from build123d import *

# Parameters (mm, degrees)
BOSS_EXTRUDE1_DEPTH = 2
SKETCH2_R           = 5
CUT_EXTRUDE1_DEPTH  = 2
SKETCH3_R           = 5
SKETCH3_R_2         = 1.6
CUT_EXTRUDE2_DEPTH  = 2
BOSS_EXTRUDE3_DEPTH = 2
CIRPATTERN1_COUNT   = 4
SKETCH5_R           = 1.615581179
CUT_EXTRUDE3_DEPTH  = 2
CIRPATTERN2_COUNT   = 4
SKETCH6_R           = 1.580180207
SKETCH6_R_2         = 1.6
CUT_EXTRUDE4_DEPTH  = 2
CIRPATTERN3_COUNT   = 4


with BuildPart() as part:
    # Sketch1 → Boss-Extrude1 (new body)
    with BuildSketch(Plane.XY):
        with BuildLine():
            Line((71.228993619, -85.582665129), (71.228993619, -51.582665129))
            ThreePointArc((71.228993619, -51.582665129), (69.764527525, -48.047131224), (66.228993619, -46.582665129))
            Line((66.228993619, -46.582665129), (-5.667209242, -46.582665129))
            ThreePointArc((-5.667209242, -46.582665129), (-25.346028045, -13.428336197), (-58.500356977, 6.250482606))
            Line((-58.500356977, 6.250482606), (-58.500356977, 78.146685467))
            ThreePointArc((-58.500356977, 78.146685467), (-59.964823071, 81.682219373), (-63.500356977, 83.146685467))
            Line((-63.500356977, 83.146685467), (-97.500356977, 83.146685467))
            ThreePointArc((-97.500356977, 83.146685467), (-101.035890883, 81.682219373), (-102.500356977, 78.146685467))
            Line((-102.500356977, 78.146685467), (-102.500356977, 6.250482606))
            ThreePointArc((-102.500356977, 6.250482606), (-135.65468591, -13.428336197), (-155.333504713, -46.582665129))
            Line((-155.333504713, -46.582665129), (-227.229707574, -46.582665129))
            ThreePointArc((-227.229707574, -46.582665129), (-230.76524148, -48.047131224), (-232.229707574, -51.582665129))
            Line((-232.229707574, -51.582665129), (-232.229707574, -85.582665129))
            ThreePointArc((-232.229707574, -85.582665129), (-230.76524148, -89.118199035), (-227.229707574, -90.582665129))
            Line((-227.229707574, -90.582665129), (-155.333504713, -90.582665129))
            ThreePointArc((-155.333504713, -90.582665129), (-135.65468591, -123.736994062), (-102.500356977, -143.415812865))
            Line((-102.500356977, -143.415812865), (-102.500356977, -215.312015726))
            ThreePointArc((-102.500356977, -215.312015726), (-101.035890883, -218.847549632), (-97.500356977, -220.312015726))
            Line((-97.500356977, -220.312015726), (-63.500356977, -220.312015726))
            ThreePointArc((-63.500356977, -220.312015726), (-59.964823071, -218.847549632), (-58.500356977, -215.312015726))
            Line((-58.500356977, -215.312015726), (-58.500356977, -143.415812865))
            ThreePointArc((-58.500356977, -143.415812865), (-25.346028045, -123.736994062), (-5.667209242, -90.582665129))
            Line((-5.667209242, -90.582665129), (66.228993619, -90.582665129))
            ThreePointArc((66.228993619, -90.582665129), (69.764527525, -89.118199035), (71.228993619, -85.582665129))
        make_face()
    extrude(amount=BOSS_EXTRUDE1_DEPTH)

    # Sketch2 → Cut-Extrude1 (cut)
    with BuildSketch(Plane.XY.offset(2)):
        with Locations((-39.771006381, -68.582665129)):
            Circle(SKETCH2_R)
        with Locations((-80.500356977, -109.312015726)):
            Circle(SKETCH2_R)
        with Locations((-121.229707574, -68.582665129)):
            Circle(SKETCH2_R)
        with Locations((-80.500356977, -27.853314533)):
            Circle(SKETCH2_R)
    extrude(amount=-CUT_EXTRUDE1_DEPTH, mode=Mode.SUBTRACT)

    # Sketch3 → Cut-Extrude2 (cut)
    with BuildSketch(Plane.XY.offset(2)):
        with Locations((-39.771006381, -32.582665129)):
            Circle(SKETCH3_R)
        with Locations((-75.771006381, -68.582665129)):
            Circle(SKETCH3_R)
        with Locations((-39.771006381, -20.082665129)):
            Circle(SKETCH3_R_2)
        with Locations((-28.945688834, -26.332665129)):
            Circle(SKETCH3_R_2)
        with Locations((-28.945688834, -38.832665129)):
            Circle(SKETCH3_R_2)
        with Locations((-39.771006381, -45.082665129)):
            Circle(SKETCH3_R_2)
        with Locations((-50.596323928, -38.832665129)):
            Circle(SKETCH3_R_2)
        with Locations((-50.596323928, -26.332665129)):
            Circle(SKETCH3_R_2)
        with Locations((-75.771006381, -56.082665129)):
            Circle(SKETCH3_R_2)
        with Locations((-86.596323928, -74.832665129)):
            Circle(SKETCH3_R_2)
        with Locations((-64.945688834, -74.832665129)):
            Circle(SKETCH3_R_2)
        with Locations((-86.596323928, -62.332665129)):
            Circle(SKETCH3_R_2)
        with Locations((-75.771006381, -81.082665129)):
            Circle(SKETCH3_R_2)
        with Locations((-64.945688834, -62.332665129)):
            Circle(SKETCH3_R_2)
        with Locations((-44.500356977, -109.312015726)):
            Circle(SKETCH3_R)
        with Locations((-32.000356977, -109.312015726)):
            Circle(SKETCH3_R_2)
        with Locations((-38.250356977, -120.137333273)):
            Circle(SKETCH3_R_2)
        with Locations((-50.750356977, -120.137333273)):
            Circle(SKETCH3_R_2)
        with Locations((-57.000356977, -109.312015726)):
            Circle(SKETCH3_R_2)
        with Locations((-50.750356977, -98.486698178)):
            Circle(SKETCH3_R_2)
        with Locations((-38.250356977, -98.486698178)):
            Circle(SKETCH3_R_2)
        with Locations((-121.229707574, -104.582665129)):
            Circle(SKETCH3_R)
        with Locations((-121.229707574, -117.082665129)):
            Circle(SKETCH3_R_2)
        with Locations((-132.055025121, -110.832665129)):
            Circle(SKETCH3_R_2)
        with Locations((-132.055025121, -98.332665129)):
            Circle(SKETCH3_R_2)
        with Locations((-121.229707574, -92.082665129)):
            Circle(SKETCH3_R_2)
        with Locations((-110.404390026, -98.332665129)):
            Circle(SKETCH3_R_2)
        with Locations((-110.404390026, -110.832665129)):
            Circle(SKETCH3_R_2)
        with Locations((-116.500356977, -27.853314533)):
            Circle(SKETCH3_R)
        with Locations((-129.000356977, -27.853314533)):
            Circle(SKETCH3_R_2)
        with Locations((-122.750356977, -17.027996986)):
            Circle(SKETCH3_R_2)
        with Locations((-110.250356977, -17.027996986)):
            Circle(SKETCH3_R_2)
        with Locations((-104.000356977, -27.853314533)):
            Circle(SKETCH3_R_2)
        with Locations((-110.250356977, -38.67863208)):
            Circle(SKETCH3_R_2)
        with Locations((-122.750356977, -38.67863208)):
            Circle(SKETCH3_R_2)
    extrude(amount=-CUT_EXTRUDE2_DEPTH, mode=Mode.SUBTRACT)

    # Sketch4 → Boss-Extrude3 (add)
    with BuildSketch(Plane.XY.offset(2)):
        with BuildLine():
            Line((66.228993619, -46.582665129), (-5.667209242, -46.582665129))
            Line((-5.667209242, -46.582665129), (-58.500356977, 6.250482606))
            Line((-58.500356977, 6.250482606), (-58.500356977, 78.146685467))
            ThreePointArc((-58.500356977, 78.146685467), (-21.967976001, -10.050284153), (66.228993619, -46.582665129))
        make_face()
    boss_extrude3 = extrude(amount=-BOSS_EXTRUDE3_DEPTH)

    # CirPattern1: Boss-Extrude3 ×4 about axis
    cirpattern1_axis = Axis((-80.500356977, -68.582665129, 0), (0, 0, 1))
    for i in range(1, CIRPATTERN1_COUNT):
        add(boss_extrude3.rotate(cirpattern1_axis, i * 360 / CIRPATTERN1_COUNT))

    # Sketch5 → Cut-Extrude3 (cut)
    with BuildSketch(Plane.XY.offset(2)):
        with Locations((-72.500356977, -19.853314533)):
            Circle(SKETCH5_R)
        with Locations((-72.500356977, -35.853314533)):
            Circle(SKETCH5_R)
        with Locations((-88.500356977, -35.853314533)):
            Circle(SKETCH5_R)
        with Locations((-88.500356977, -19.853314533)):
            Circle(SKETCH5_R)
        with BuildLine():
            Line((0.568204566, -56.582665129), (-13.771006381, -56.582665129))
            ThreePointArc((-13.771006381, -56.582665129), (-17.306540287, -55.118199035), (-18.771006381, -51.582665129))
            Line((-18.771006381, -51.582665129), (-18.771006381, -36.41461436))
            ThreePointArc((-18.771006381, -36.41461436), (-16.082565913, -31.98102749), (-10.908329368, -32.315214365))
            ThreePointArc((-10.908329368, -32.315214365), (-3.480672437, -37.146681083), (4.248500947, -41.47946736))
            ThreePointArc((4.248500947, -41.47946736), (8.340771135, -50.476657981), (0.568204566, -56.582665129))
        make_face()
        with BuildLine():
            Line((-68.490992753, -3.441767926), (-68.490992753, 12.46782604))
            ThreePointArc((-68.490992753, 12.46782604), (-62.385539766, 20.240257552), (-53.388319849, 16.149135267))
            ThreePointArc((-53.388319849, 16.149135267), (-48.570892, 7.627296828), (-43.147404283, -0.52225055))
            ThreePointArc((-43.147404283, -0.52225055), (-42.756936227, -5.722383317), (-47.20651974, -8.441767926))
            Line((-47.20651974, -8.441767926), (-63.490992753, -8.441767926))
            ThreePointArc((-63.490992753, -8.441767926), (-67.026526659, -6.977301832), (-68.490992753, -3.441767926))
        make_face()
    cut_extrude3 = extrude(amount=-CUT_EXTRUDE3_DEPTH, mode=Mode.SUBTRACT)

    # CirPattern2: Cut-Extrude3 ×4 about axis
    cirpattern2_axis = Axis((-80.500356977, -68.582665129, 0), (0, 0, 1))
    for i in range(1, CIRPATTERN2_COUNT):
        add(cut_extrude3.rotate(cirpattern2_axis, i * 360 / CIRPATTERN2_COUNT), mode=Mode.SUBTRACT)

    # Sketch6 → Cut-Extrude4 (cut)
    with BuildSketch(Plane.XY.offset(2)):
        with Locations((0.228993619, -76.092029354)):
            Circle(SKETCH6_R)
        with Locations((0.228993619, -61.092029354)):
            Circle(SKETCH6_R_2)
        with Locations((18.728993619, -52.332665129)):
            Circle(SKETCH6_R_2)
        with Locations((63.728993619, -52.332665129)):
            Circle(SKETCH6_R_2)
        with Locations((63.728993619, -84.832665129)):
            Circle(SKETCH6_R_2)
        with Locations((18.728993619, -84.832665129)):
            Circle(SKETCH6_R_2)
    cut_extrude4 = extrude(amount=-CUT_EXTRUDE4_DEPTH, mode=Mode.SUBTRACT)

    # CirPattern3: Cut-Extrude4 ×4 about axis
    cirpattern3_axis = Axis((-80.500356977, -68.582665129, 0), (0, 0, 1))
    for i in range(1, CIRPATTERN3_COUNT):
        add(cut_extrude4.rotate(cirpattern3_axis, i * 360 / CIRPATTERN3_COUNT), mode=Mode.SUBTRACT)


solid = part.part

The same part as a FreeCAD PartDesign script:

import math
import FreeCAD as App
import Part
import Sketcher

V = App.Vector

doc = App.newDocument("Part")
body = doc.addObject("PartDesign::Body", "Body")

# Sketch on XY plane
sketch1 = doc.addObject("Sketcher::SketchObject", "Sketch")
body.addObject(sketch1)
sketch1.AttachmentSupport = (doc.XY_Plane, [""])
sketch1.MapMode = "FlatFace"
sketch1.addGeometry(Part.LineSegment(V(71, -86, 0), V(71, -52, 0)), False)
sketch1.addGeometry(Part.ArcOfCircle(Part.Circle(V(66, -52, 0), V(0, 0, 1), 5), math.radians(0), math.radians(90)), False)
sketch1.addGeometry(Part.LineSegment(V(66, -47, 0), V(-6, -47, 0)), False)
sketch1.addGeometry(Part.ArcOfCircle(Part.Circle(V(-81, -69, 0), V(0, 0, 1), 78), math.radians(16), math.radians(74)), False)
sketch1.addGeometry(Part.LineSegment(V(-59, 6, 0), V(-59, 78, 0)), False)
sketch1.addGeometry(Part.ArcOfCircle(Part.Circle(V(-64, 78, 0), V(0, 0, 1), 5), math.radians(0), math.radians(90)), False)
sketch1.addGeometry(Part.LineSegment(V(-64, 83, 0), V(-98, 83, 0)), False)
sketch1.addGeometry(Part.ArcOfCircle(Part.Circle(V(-98, 78, 0), V(0, 0, 1), 5), math.radians(90), math.radians(180)), False)
sketch1.addGeometry(Part.LineSegment(V(-103, 78, 0), V(-103, 6, 0)), False)
sketch1.addGeometry(Part.ArcOfCircle(Part.Circle(V(-81, -69, 0), V(0, 0, 1), 78), math.radians(106), math.radians(164)), False)
sketch1.addGeometry(Part.LineSegment(V(-155, -47, 0), V(-227, -47, 0)), False)
sketch1.addGeometry(Part.ArcOfCircle(Part.Circle(V(-227, -52, 0), V(0, 0, 1), 5), math.radians(90), math.radians(180)), False)
sketch1.addGeometry(Part.LineSegment(V(-232, -52, 0), V(-232, -86, 0)), False)
sketch1.addGeometry(Part.ArcOfCircle(Part.Circle(V(-227, -86, 0), V(0, 0, 1), 5), math.radians(180), math.radians(270)), False)
sketch1.addGeometry(Part.LineSegment(V(-227, -91, 0), V(-155, -91, 0)), False)
sketch1.addGeometry(Part.ArcOfCircle(Part.Circle(V(-81, -69, 0), V(0, 0, 1), 78), math.radians(-164), math.radians(-106)), False)
sketch1.addGeometry(Part.LineSegment(V(-103, -143, 0), V(-103, -215, 0)), False)
sketch1.addGeometry(Part.ArcOfCircle(Part.Circle(V(-98, -215, 0), V(0, 0, 1), 5), math.radians(180), math.radians(270)), False)
sketch1.addGeometry(Part.LineSegment(V(-98, -220, 0), V(-64, -220, 0)), False)
sketch1.addGeometry(Part.ArcOfCircle(Part.Circle(V(-64, -215, 0), V(0, 0, 1), 5), math.radians(-90), math.radians(0)), False)
sketch1.addGeometry(Part.LineSegment(V(-59, -215, 0), V(-59, -143, 0)), False)
sketch1.addGeometry(Part.ArcOfCircle(Part.Circle(V(-81, -69, 0), V(0, 0, 1), 78), math.radians(-74), math.radians(-16)), False)
sketch1.addGeometry(Part.LineSegment(V(-6, -91, 0), V(66, -91, 0)), False)
sketch1.addGeometry(Part.ArcOfCircle(Part.Circle(V(66, -86, 0), V(0, 0, 1), 5), math.radians(-90), math.radians(0)), False)
sketch1.addConstraint(Sketcher.Constraint("Tangent", 0, 2, 1, 1))
sketch1.addConstraint(Sketcher.Constraint("Tangent", 1, 2, 2, 1))
sketch1.addConstraint(Sketcher.Constraint("Coincident", 2, 2, 3, 1))
sketch1.addConstraint(Sketcher.Constraint("Coincident", 3, 2, 4, 1))
sketch1.addConstraint(Sketcher.Constraint("Tangent", 4, 2, 5, 1))
sketch1.addConstraint(Sketcher.Constraint("Tangent", 5, 2, 6, 1))
sketch1.addConstraint(Sketcher.Constraint("Tangent", 6, 2, 7, 1))
sketch1.addConstraint(Sketcher.Constraint("Tangent", 7, 2, 8, 1))
sketch1.addConstraint(Sketcher.Constraint("Coincident", 8, 2, 9, 1))
sketch1.addConstraint(Sketcher.Constraint("Coincident", 9, 2, 10, 1))
sketch1.addConstraint(Sketcher.Constraint("Tangent", 10, 2, 11, 1))
sketch1.addConstraint(Sketcher.Constraint("Tangent", 11, 2, 12, 1))
sketch1.addConstraint(Sketcher.Constraint("Tangent", 12, 2, 13, 1))
sketch1.addConstraint(Sketcher.Constraint("Tangent", 13, 2, 14, 1))
sketch1.addConstraint(Sketcher.Constraint("Coincident", 14, 2, 15, 1))
sketch1.addConstraint(Sketcher.Constraint("Coincident", 15, 2, 16, 1))
sketch1.addConstraint(Sketcher.Constraint("Tangent", 16, 2, 17, 1))
sketch1.addConstraint(Sketcher.Constraint("Tangent", 17, 2, 18, 1))
sketch1.addConstraint(Sketcher.Constraint("Tangent", 18, 2, 19, 1))
sketch1.addConstraint(Sketcher.Constraint("Tangent", 19, 2, 20, 1))
sketch1.addConstraint(Sketcher.Constraint("Coincident", 20, 2, 21, 1))
sketch1.addConstraint(Sketcher.Constraint("Coincident", 21, 2, 22, 1))
sketch1.addConstraint(Sketcher.Constraint("Tangent", 22, 2, 23, 1))
sketch1.addConstraint(Sketcher.Constraint("Tangent", 23, 2, 0, 1))
sketch1.addConstraint(Sketcher.Constraint("Vertical", 0))
sketch1.addConstraint(Sketcher.Constraint("Horizontal", 2))
sketch1.addConstraint(Sketcher.Constraint("Vertical", 4))
sketch1.addConstraint(Sketcher.Constraint("Horizontal", 6))
sketch1.addConstraint(Sketcher.Constraint("Vertical", 8))
sketch1.addConstraint(Sketcher.Constraint("Horizontal", 10))
sketch1.addConstraint(Sketcher.Constraint("Vertical", 12))
sketch1.addConstraint(Sketcher.Constraint("Horizontal", 14))
sketch1.addConstraint(Sketcher.Constraint("Vertical", 16))
sketch1.addConstraint(Sketcher.Constraint("Horizontal", 18))
sketch1.addConstraint(Sketcher.Constraint("Vertical", 20))
sketch1.addConstraint(Sketcher.Constraint("Horizontal", 22))
sketch1.addConstraint(Sketcher.Constraint("Coincident", 9, 3, 3, 3))
sketch1.addConstraint(Sketcher.Constraint("Coincident", 15, 3, 3, 3))
sketch1.addConstraint(Sketcher.Constraint("Coincident", 21, 3, 3, 3))
sketch1.addConstraint(Sketcher.Constraint("Equal", 1, 5))
sketch1.addConstraint(Sketcher.Constraint("Equal", 5, 7))
sketch1.addConstraint(Sketcher.Constraint("Equal", 3, 9))
sketch1.addConstraint(Sketcher.Constraint("Equal", 7, 11))
sketch1.addConstraint(Sketcher.Constraint("Equal", 11, 13))
sketch1.addConstraint(Sketcher.Constraint("Equal", 9, 15))
sketch1.addConstraint(Sketcher.Constraint("Equal", 13, 17))
sketch1.addConstraint(Sketcher.Constraint("Equal", 17, 19))
sketch1.addConstraint(Sketcher.Constraint("Equal", 15, 21))
sketch1.addConstraint(Sketcher.Constraint("Equal", 19, 23))
sketch1.addConstraint(Sketcher.Constraint("Horizontal", 1, 3, 11, 3))
sketch1.addConstraint(Sketcher.Constraint("Horizontal", 13, 3, 23, 3))
sketch1.addConstraint(Sketcher.Constraint("Horizontal", 3, 2, 8, 2))
sketch1.addConstraint(Sketcher.Constraint("Horizontal", 15, 2, 20, 2))
sketch1.addConstraint(Sketcher.Constraint("Vertical", 7, 3, 17, 3))
sketch1.addConstraint(Sketcher.Constraint("Vertical", 9, 2, 14, 2))
sketch1.addConstraint(Sketcher.Constraint("Equal", 2, 10))
sketch1.addConstraint(Sketcher.Constraint("Equal", 18, 0))
sketch1.addConstraint(Sketcher.Constraint("Equal", 22, 4))
sketch1.addConstraint(Sketcher.Constraint("Equal", 8, 16))
sketch1.addConstraint(Sketcher.Constraint("Radius", 1, 5.0))
sketch1.addConstraint(Sketcher.Constraint("Radius", 3, 78.0))
sketch1.addConstraint(Sketcher.Constraint("DistanceX", 6, 2, 6, 1, 34.0))
sketch1.addConstraint(Sketcher.Constraint("DistanceX", 11, 3, 1, 3, 293.458701))
sketch1.addConstraint(Sketcher.Constraint("DistanceX", 2, 2, -1, 1, 5.667209))
sketch1.addConstraint(Sketcher.Constraint("DistanceY", 1, 3, -1, 1, 51.582665))
pad1 = doc.addObject("PartDesign::Pad", "Pad")
body.addObject(pad1)
pad1.Profile = sketch1
pad1.Length = 2

# Sketch on XY plane
sketch2 = doc.addObject("Sketcher::SketchObject", "Sketch001")
body.addObject(sketch2)
sketch2.AttachmentSupport = (doc.XY_Plane, [""])
sketch2.MapMode = "FlatFace"
sketch2.AttachmentOffset = App.Placement(V(0, 0, 2), App.Rotation())
sketch2.addGeometry(Part.Circle(V(-40, -69, 0), V(0, 0, 1), 5), False)
sketch2.addGeometry(Part.Circle(V(-81, -109, 0), V(0, 0, 1), 5), False)
sketch2.addGeometry(Part.Circle(V(-121, -69, 0), V(0, 0, 1), 5), False)
sketch2.addGeometry(Part.Circle(V(-81, -28, 0), V(0, 0, 1), 5), False)
sketch2.addConstraint(Sketcher.Constraint("Equal", 0, 1))
sketch2.addConstraint(Sketcher.Constraint("Equal", 1, 2))
sketch2.addConstraint(Sketcher.Constraint("Equal", 2, 3))
sketch2.addConstraint(Sketcher.Constraint("Horizontal", 0, 3, 2, 3))
sketch2.addConstraint(Sketcher.Constraint("Vertical", 1, 3, 3, 3))
sketch2.addConstraint(Sketcher.Constraint("Diameter", 0, 10.0))
sketch2.addConstraint(Sketcher.Constraint("DistanceX", 2, 3, 0, 3, 81.458701))
sketch2.addConstraint(Sketcher.Constraint("DistanceY", 1, 3, 3, 3, 81.458701))
sketch2.addConstraint(Sketcher.Constraint("DistanceX", 1, 3, 0, 3, 40.729351))
sketch2.addConstraint(Sketcher.Constraint("DistanceY", 1, 3, 0, 3, 40.729351))
sketch2.addConstraint(Sketcher.Constraint("DistanceX", 0, 3, -1, 1, 39.771006))
sketch2.addConstraint(Sketcher.Constraint("DistanceY", 0, 3, -1, 1, 68.582665))
pocket1 = doc.addObject("PartDesign::Pocket", "Pocket")
body.addObject(pocket1)
pocket1.Profile = sketch2
pocket1.Length = 2

# Sketch on XY plane
sketch3 = doc.addObject("Sketcher::SketchObject", "Sketch002")
body.addObject(sketch3)
sketch3.AttachmentSupport = (doc.XY_Plane, [""])
sketch3.MapMode = "FlatFace"
sketch3.AttachmentOffset = App.Placement(V(0, 0, 2), App.Rotation())
sketch3.addGeometry(Part.Circle(V(-39.8, -32.6, 0), V(0, 0, 1), 5), False)
sketch3.addGeometry(Part.Circle(V(-75.8, -68.6, 0), V(0, 0, 1), 5), False)
sketch3.addGeometry(Part.Circle(V(-39.8, -20.1, 0), V(0, 0, 1), 1.6), False)
sketch3.addGeometry(Part.Circle(V(-28.9, -26.3, 0), V(0, 0, 1), 1.6), False)
sketch3.addGeometry(Part.Circle(V(-28.9, -38.8, 0), V(0, 0, 1), 1.6), False)
sketch3.addGeometry(Part.Circle(V(-39.8, -45.1, 0), V(0, 0, 1), 1.6), False)
sketch3.addGeometry(Part.Circle(V(-50.6, -38.8, 0), V(0, 0, 1), 1.6), False)
sketch3.addGeometry(Part.Circle(V(-50.6, -26.3, 0), V(0, 0, 1), 1.6), False)
sketch3.addGeometry(Part.Circle(V(-75.8, -56.1, 0), V(0, 0, 1), 1.6), False)
sketch3.addGeometry(Part.Circle(V(-86.6, -74.8, 0), V(0, 0, 1), 1.6), False)
sketch3.addGeometry(Part.Circle(V(-64.9, -74.8, 0), V(0, 0, 1), 1.6), False)
sketch3.addGeometry(Part.Circle(V(-86.6, -62.3, 0), V(0, 0, 1), 1.6), False)
sketch3.addGeometry(Part.Circle(V(-75.8, -81.1, 0), V(0, 0, 1), 1.6), False)
sketch3.addGeometry(Part.Circle(V(-64.9, -62.3, 0), V(0, 0, 1), 1.6), False)
sketch3.addGeometry(Part.Circle(V(-44.5, -109.3, 0), V(0, 0, 1), 5), False)
sketch3.addGeometry(Part.Circle(V(-32, -109.3, 0), V(0, 0, 1), 1.6), False)
sketch3.addGeometry(Part.Circle(V(-38.3, -120.1, 0), V(0, 0, 1), 1.6), False)
sketch3.addGeometry(Part.Circle(V(-50.8, -120.1, 0), V(0, 0, 1), 1.6), False)
sketch3.addGeometry(Part.Circle(V(-57, -109.3, 0), V(0, 0, 1), 1.6), False)
sketch3.addGeometry(Part.Circle(V(-50.8, -98.5, 0), V(0, 0, 1), 1.6), False)
sketch3.addGeometry(Part.Circle(V(-38.3, -98.5, 0), V(0, 0, 1), 1.6), False)
sketch3.addGeometry(Part.Circle(V(-121.2, -104.6, 0), V(0, 0, 1), 5), False)
sketch3.addGeometry(Part.Circle(V(-121.2, -117.1, 0), V(0, 0, 1), 1.6), False)
sketch3.addGeometry(Part.Circle(V(-132.1, -110.8, 0), V(0, 0, 1), 1.6), False)
sketch3.addGeometry(Part.Circle(V(-132.1, -98.3, 0), V(0, 0, 1), 1.6), False)
sketch3.addGeometry(Part.Circle(V(-121.2, -92.1, 0), V(0, 0, 1), 1.6), False)
sketch3.addGeometry(Part.Circle(V(-110.4, -98.3, 0), V(0, 0, 1), 1.6), False)
sketch3.addGeometry(Part.Circle(V(-110.4, -110.8, 0), V(0, 0, 1), 1.6), False)
sketch3.addGeometry(Part.Circle(V(-116.5, -27.9, 0), V(0, 0, 1), 5), False)
sketch3.addGeometry(Part.Circle(V(-129, -27.9, 0), V(0, 0, 1), 1.6), False)
sketch3.addGeometry(Part.Circle(V(-122.8, -17, 0), V(0, 0, 1), 1.6), False)
sketch3.addGeometry(Part.Circle(V(-110.3, -17, 0), V(0, 0, 1), 1.6), False)
sketch3.addGeometry(Part.Circle(V(-104, -27.9, 0), V(0, 0, 1), 1.6), False)
sketch3.addGeometry(Part.Circle(V(-110.3, -38.7, 0), V(0, 0, 1), 1.6), False)
sketch3.addGeometry(Part.Circle(V(-122.8, -38.7, 0), V(0, 0, 1), 1.6), False)
sketch3.addConstraint(Sketcher.Constraint("Equal", 0, 1))
sketch3.addConstraint(Sketcher.Constraint("Equal", 2, 3))
sketch3.addConstraint(Sketcher.Constraint("Equal", 3, 4))
sketch3.addConstraint(Sketcher.Constraint("Equal", 4, 5))
sketch3.addConstraint(Sketcher.Constraint("Equal", 5, 6))
sketch3.addConstraint(Sketcher.Constraint("Equal", 6, 7))
sketch3.addConstraint(Sketcher.Constraint("Equal", 7, 8))
sketch3.addConstraint(Sketcher.Constraint("Equal", 8, 9))
sketch3.addConstraint(Sketcher.Constraint("Equal", 9, 10))
sketch3.addConstraint(Sketcher.Constraint("Equal", 10, 11))
sketch3.addConstraint(Sketcher.Constraint("Equal", 11, 12))
sketch3.addConstraint(Sketcher.Constraint("Equal", 12, 13))
sketch3.addConstraint(Sketcher.Constraint("Equal", 1, 14))
sketch3.addConstraint(Sketcher.Constraint("Equal", 13, 15))
sketch3.addConstraint(Sketcher.Constraint("Equal", 15, 16))
sketch3.addConstraint(Sketcher.Constraint("Equal", 16, 17))
sketch3.addConstraint(Sketcher.Constraint("Equal", 17, 18))
sketch3.addConstraint(Sketcher.Constraint("Equal", 18, 19))
sketch3.addConstraint(Sketcher.Constraint("Equal", 19, 20))
sketch3.addConstraint(Sketcher.Constraint("Equal", 14, 21))
sketch3.addConstraint(Sketcher.Constraint("Equal", 20, 22))
sketch3.addConstraint(Sketcher.Constraint("Equal", 22, 23))
sketch3.addConstraint(Sketcher.Constraint("Equal", 23, 24))
sketch3.addConstraint(Sketcher.Constraint("Equal", 24, 25))
sketch3.addConstraint(Sketcher.Constraint("Equal", 25, 26))
sketch3.addConstraint(Sketcher.Constraint("Equal", 26, 27))
sketch3.addConstraint(Sketcher.Constraint("Equal", 21, 28))
sketch3.addConstraint(Sketcher.Constraint("Equal", 27, 29))
sketch3.addConstraint(Sketcher.Constraint("Equal", 29, 30))
sketch3.addConstraint(Sketcher.Constraint("Equal", 30, 31))
sketch3.addConstraint(Sketcher.Constraint("Equal", 31, 32))
sketch3.addConstraint(Sketcher.Constraint("Equal", 32, 33))
sketch3.addConstraint(Sketcher.Constraint("Equal", 33, 34))
sketch3.addConstraint(Sketcher.Constraint("Horizontal", 4, 3, 6, 3))
sketch3.addConstraint(Sketcher.Constraint("Horizontal", 3, 3, 7, 3))
sketch3.addConstraint(Sketcher.Constraint("Horizontal", 9, 3, 10, 3))
sketch3.addConstraint(Sketcher.Constraint("Horizontal", 11, 3, 13, 3))
sketch3.addConstraint(Sketcher.Constraint("Horizontal", 14, 3, 15, 3))
sketch3.addConstraint(Sketcher.Constraint("Horizontal", 16, 3, 17, 3))
sketch3.addConstraint(Sketcher.Constraint("Horizontal", 15, 3, 18, 3))
sketch3.addConstraint(Sketcher.Constraint("Horizontal", 19, 3, 20, 3))
sketch3.addConstraint(Sketcher.Constraint("Horizontal", 24, 3, 26, 3))
sketch3.addConstraint(Sketcher.Constraint("Horizontal", 23, 3, 27, 3))
sketch3.addConstraint(Sketcher.Constraint("Horizontal", 28, 3, 29, 3))
sketch3.addConstraint(Sketcher.Constraint("Horizontal", 30, 3, 31, 3))
sketch3.addConstraint(Sketcher.Constraint("Horizontal", 29, 3, 32, 3))
sketch3.addConstraint(Sketcher.Constraint("Horizontal", 33, 3, 34, 3))
sketch3.addConstraint(Sketcher.Constraint("Vertical", 0, 3, 2, 3))
sketch3.addConstraint(Sketcher.Constraint("Vertical", 3, 3, 4, 3))
sketch3.addConstraint(Sketcher.Constraint("Vertical", 2, 3, 5, 3))
sketch3.addConstraint(Sketcher.Constraint("Vertical", 6, 3, 7, 3))
sketch3.addConstraint(Sketcher.Constraint("Vertical", 1, 3, 8, 3))
sketch3.addConstraint(Sketcher.Constraint("Vertical", 9, 3, 11, 3))
sketch3.addConstraint(Sketcher.Constraint("Vertical", 8, 3, 12, 3))
sketch3.addConstraint(Sketcher.Constraint("Vertical", 10, 3, 13, 3))
sketch3.addConstraint(Sketcher.Constraint("Vertical", 17, 3, 19, 3))
sketch3.addConstraint(Sketcher.Constraint("Vertical", 16, 3, 20, 3))
sketch3.addConstraint(Sketcher.Constraint("Vertical", 21, 3, 22, 3))
sketch3.addConstraint(Sketcher.Constraint("Vertical", 23, 3, 24, 3))
sketch3.addConstraint(Sketcher.Constraint("Vertical", 22, 3, 25, 3))
sketch3.addConstraint(Sketcher.Constraint("Vertical", 26, 3, 27, 3))
sketch3.addConstraint(Sketcher.Constraint("Vertical", 31, 3, 33, 3))
sketch3.addConstraint(Sketcher.Constraint("Vertical", 30, 3, 34, 3))
sketch3.addConstraint(Sketcher.Constraint("Diameter", 0, 10.0))
sketch3.addConstraint(Sketcher.Constraint("Diameter", 2, 3.2))
sketch3.addConstraint(Sketcher.Constraint("DistanceX", 1, 3, 0, 3, 36.0))
sketch3.addConstraint(Sketcher.Constraint("DistanceY", 1, 3, 0, 3, 36.0))
sketch3.addConstraint(Sketcher.Constraint("DistanceY", 5, 3, 2, 3, 25.0))
sketch3.addConstraint(Sketcher.Constraint("DistanceY", 8, 3, 5, 3, 11.0))
sketch3.addConstraint(Sketcher.Constraint("DistanceX", 9, 3, 6, 3, 36.0))
sketch3.addConstraint(Sketcher.Constraint("DistanceY", 9, 3, 6, 3, 36.0))
sketch3.addConstraint(Sketcher.Constraint("DistanceY", 12, 3, 8, 3, 25.0))
sketch3.addConstraint(Sketcher.Constraint("DistanceX", 18, 3, 15, 3, 25.0))
sketch3.addConstraint(Sketcher.Constraint("DistanceY", 21, 3, 1, 3, 36.0))
sketch3.addConstraint(Sketcher.Constraint("DistanceY", 22, 3, 12, 3, 36.0))
sketch3.addConstraint(Sketcher.Constraint("DistanceY", 23, 3, 9, 3, 36.0))
sketch3.addConstraint(Sketcher.Constraint("DistanceY", 24, 3, 11, 3, 36.0))
sketch3.addConstraint(Sketcher.Constraint("DistanceY", 22, 3, 25, 3, 25.0))
sketch3.addConstraint(Sketcher.Constraint("DistanceX", 29, 3, 32, 3, 25.0))
sketch3.addConstraint(Sketcher.Constraint("DistanceY", 0, 3, 2, 3, 12.5))
sketch3.addConstraint(Sketcher.Constraint("DistanceY", 4, 3, 3, 3, 12.5))
sketch3.addConstraint(Sketcher.Constraint("DistanceY", 9, 3, 11, 3, 12.5))
sketch3.addConstraint(Sketcher.Constraint("DistanceX", 14, 3, 15, 3, 12.5))
sketch3.addConstraint(Sketcher.Constraint("DistanceX", 17, 3, 16, 3, 12.5))
sketch3.addConstraint(Sketcher.Constraint("DistanceX", 29, 3, 28, 3, 12.5))
sketch3.addConstraint(Sketcher.Constraint("DistanceX", 30, 3, 31, 3, 12.5))
sketch3.addConstraint(Sketcher.Constraint("DistanceY", 0, 3, 3, 3, 6.25))
sketch3.addConstraint(Sketcher.Constraint("DistanceX", 14, 3, 16, 3, 6.25))
sketch3.addConstraint(Sketcher.Constraint("DistanceX", 30, 3, 28, 3, 6.25))
sketch3.addConstraint(Sketcher.Constraint("DistanceY", 19, 3, -1, 1, 98.486698))
sketch3.addConstraint(Sketcher.Constraint("DistanceX", 21, 3, 12, 3, 45.458701))
sketch3.addConstraint(Sketcher.Constraint("DistanceX", 23, 3, 9, 3, 45.458701))
sketch3.addConstraint(Sketcher.Constraint("DistanceX", 3, 3, -1, 1, 28.945689))
sketch3.addConstraint(Sketcher.Constraint("DistanceX", 10, 3, -1, 1, 64.945689))
sketch3.addConstraint(Sketcher.Constraint("DistanceX", 26, 3, -1, 1, 110.40439))
sketch3.addConstraint(Sketcher.Constraint("DistanceX", 10, 3, 14, 3, 20.445332))
sketch3.addConstraint(Sketcher.Constraint("DistanceY", 14, 3, 10, 3, 34.479351))
sketch3.addConstraint(Sketcher.Constraint("DistanceX", 12, 3, 14, 3, 31.270649))
sketch3.addConstraint(Sketcher.Constraint("DistanceY", 16, 3, 10, 3, 45.304668))
sketch3.addConstraint(Sketcher.Constraint("DistanceX", 23, 3, 12, 3, 56.284019))
sketch3.addConstraint(Sketcher.Constraint("DistanceY", 11, 3, 28, 3, 34.479351))
sketch3.addConstraint(Sketcher.Constraint("DistanceX", 28, 3, 8, 3, 40.729351))
sketch3.addConstraint(Sketcher.Constraint("DistanceY", 11, 3, 30, 3, 45.304668))
sketch3.addConstraint(Sketcher.Constraint("DistanceY", 0, 3, -1, 1, 32.582665))
sketch3.addConstraint(Sketcher.Constraint("DistanceY", 33, 3, -1, 1, 38.678632))
pocket2 = doc.addObject("PartDesign::Pocket", "Pocket001")
body.addObject(pocket2)
pocket2.Profile = sketch3
pocket2.Length = 2

# Sketch on XY plane
sketch4 = doc.addObject("Sketcher::SketchObject", "Sketch003")
body.addObject(sketch4)
sketch4.AttachmentSupport = (doc.XY_Plane, [""])
sketch4.MapMode = "FlatFace"
sketch4.AttachmentOffset = App.Placement(V(0, 0, 2), App.Rotation())
sketch4.addGeometry(Part.LineSegment(V(-6, -47, 0), V(66, -47, 0)), False)
sketch4.addGeometry(Part.ArcOfCircle(Part.Circle(V(66, 78, 0), V(0, 0, 1), 125), math.radians(180), math.radians(270)), False)
sketch4.addGeometry(Part.LineSegment(V(-59, 78, 0), V(-59, 6, 0)), False)
sketch4.addGeometry(Part.LineSegment(V(-59, 6, 0), V(-6, -47, 0)), False)
sketch4.addConstraint(Sketcher.Constraint("Tangent", 0, 2, 1, 2))
sketch4.addConstraint(Sketcher.Constraint("Tangent", 1, 1, 2, 1))
sketch4.addConstraint(Sketcher.Constraint("Coincident", 2, 2, 3, 1))
sketch4.addConstraint(Sketcher.Constraint("Coincident", 3, 2, 0, 1))
sketch4.addConstraint(Sketcher.Constraint("Horizontal", 0))
sketch4.addConstraint(Sketcher.Constraint("Vertical", 2))
sketch4.addConstraint(Sketcher.Constraint("Equal", 0, 2))
sketch4.addConstraint(Sketcher.Constraint("Radius", 1, 124.729351))
sketch4.addConstraint(Sketcher.Constraint("DistanceX", 0, 1, 0, 2, 71.896203))
sketch4.addConstraint(Sketcher.Constraint("DistanceX", 3, 2, -1, 1, 5.667209))
sketch4.addConstraint(Sketcher.Constraint("DistanceY", -1, 1, 1, 3, 78.146685))
pad2 = doc.addObject("PartDesign::Pad", "Pad001")
body.addObject(pad2)
pad2.Profile = sketch4
pad2.Length = 2
pad2.Reversed = True
doc.recompute()

datumline = doc.addObject("PartDesign::Line", "DatumLine")
body.addObject(datumline)
datumline.Placement = App.Placement(V(-80.500357, -68.582665, 0), App.Rotation(V(0, 0, 1), V(0, 0, 1)))
polarpattern = doc.addObject("PartDesign::PolarPattern", "PolarPattern")
body.addObject(polarpattern)
polarpattern.Originals = [pad2]
polarpattern.Axis = (datumline, [""])
polarpattern.Angle = 360
polarpattern.Occurrences = 4
body.Tip = polarpattern

# Sketch on XY plane
sketch5 = doc.addObject("Sketcher::SketchObject", "Sketch004")
body.addObject(sketch5)
sketch5.AttachmentSupport = (doc.XY_Plane, [""])
sketch5.MapMode = "FlatFace"
sketch5.AttachmentOffset = App.Placement(V(0, 0, 2), App.Rotation())
sketch5.addGeometry(Part.Circle(V(-72.5, -19.9, 0), V(0, 0, 1), 1.6), False)
sketch5.addGeometry(Part.Circle(V(-72.5, -35.9, 0), V(0, 0, 1), 1.6), False)
sketch5.addGeometry(Part.Circle(V(-88.5, -35.9, 0), V(0, 0, 1), 1.6), False)
sketch5.addGeometry(Part.Circle(V(-88.5, -19.9, 0), V(0, 0, 1), 1.6), False)
sketch5.addGeometry(Part.LineSegment(V(-13.8, -56.6, 0), V(0.6, -56.6, 0)), False)
sketch5.addGeometry(Part.ArcOfCircle(Part.Circle(V(0.6, -48.6, 0), V(0, 0, 1), 8), math.radians(-90), math.radians(63)), False)
sketch5.addGeometry(Part.ArcOfCircle(Part.Circle(V(66.2, 78.1, 0), V(0, 0, 1), 134.7), math.radians(-124.93), math.radians(-117.39)), False)
sketch5.addGeometry(Part.ArcOfCircle(Part.Circle(V(-13.8, -36.4, 0), V(0, 0, 1), 5), math.radians(55), math.radians(180)), False)
sketch5.addGeometry(Part.LineSegment(V(-18.8, -36.4, 0), V(-18.8, -51.6, 0)), False)
sketch5.addGeometry(Part.ArcOfCircle(Part.Circle(V(-13.8, -51.6, 0), V(0, 0, 1), 5), math.radians(180), math.radians(270)), False)
sketch5.addGeometry(Part.LineSegment(V(-68.5, 12.5, 0), V(-68.5, -3.4, 0)), False)
sketch5.addGeometry(Part.ArcOfCircle(Part.Circle(V(-63.5, -3.4, 0), V(0, 0, 1), 5), math.radians(180), math.radians(270)), False)
sketch5.addGeometry(Part.LineSegment(V(-63.5, -8.4, 0), V(-47.2, -8.4, 0)), False)
sketch5.addGeometry(Part.ArcOfCircle(Part.Circle(V(-47.2, -3.4, 0), V(0, 0, 1), 5), math.radians(-90), math.radians(36)), False)
sketch5.addGeometry(Part.ArcOfCircle(Part.Circle(V(66.2, 78.1, 0), V(0, 0, 1), 134.7), math.radians(-152.6), math.radians(-144.27)), False)
sketch5.addGeometry(Part.ArcOfCircle(Part.Circle(V(-60.5, 12.5, 0), V(0, 0, 1), 8), math.radians(27), math.radians(180)), False)
sketch5.addConstraint(Sketcher.Constraint("Tangent", 4, 2, 5, 1))
sketch5.addConstraint(Sketcher.Constraint("Tangent", 5, 2, 6, 2))
sketch5.addConstraint(Sketcher.Constraint("Tangent", 6, 1, 7, 1))
sketch5.addConstraint(Sketcher.Constraint("Tangent", 7, 2, 8, 1))
sketch5.addConstraint(Sketcher.Constraint("Tangent", 8, 2, 9, 1))
sketch5.addConstraint(Sketcher.Constraint("Tangent", 9, 2, 4, 1))
sketch5.addConstraint(Sketcher.Constraint("Tangent", 10, 2, 11, 1))
sketch5.addConstraint(Sketcher.Constraint("Tangent", 11, 2, 12, 1))
sketch5.addConstraint(Sketcher.Constraint("Tangent", 12, 2, 13, 1))
sketch5.addConstraint(Sketcher.Constraint("Tangent", 13, 2, 14, 2))
sketch5.addConstraint(Sketcher.Constraint("Tangent", 14, 1, 15, 1))
sketch5.addConstraint(Sketcher.Constraint("Tangent", 15, 2, 10, 1))
sketch5.addConstraint(Sketcher.Constraint("Horizontal", 4))
sketch5.addConstraint(Sketcher.Constraint("Vertical", 8))
sketch5.addConstraint(Sketcher.Constraint("Vertical", 10))
sketch5.addConstraint(Sketcher.Constraint("Horizontal", 12))
sketch5.addConstraint(Sketcher.Constraint("Coincident", 14, 3, 6, 3))
sketch5.addConstraint(Sketcher.Constraint("Equal", 0, 1))
sketch5.addConstraint(Sketcher.Constraint("Equal", 1, 2))
sketch5.addConstraint(Sketcher.Constraint("Equal", 2, 3))
sketch5.addConstraint(Sketcher.Constraint("Equal", 7, 9))
sketch5.addConstraint(Sketcher.Constraint("Equal", 9, 11))
sketch5.addConstraint(Sketcher.Constraint("Equal", 11, 13))
sketch5.addConstraint(Sketcher.Constraint("Equal", 6, 14))
sketch5.addConstraint(Sketcher.Constraint("Equal", 5, 15))
sketch5.addConstraint(Sketcher.Constraint("Horizontal", 1, 3, 2, 3))
sketch5.addConstraint(Sketcher.Constraint("Horizontal", 0, 3, 3, 3))
sketch5.addConstraint(Sketcher.Constraint("Vertical", 0, 3, 1, 3))
sketch5.addConstraint(Sketcher.Constraint("Vertical", 2, 3, 3, 3))
sketch5.addConstraint(Sketcher.Constraint("Radius", 5, 8.0))
sketch5.addConstraint(Sketcher.Constraint("Radius", 7, 5.0))
sketch5.addConstraint(Sketcher.Constraint("DistanceY", 1, 3, 0, 3, 16.0))
sketch5.addConstraint(Sketcher.Constraint("DistanceX", 2, 3, 1, 3, 16.0))
sketch5.addConstraint(Sketcher.Constraint("DistanceY", 0, 3, 6, 3, 98.0))
sketch5.addConstraint(Sketcher.Constraint("DistanceX", 7, 3, 14, 3, 80.0))
sketch5.addConstraint(Sketcher.Constraint("Radius", 6, 134.729351))
sketch5.addConstraint(Sketcher.Constraint("Diameter", 0, 3.231162))
sketch5.addConstraint(Sketcher.Constraint("DistanceX", 4, 1, 4, 2, 14.339211))
sketch5.addConstraint(Sketcher.Constraint("DistanceX", -1, 1, 5, 2, 4.248501))
sketch5.addConstraint(Sketcher.Constraint("DistanceY", 5, 2, 13, 3, 38.037699))
sketch5.addConstraint(Sketcher.Constraint("DistanceX", 14, 1, 13, 3, 6.1818))
sketch5.addConstraint(Sketcher.Constraint("DistanceY", 13, 2, -1, 1, 0.522251))
sketch5.addConstraint(Sketcher.Constraint("DistanceX", 1, 3, 5, 3, 73.068562))
pocket3 = doc.addObject("PartDesign::Pocket", "Pocket002")
body.addObject(pocket3)
pocket3.Profile = sketch5
pocket3.Length = 2
doc.recompute()

datumline2 = doc.addObject("PartDesign::Line", "DatumLine001")
body.addObject(datumline2)
datumline2.Placement = App.Placement(V(-80.500357, -68.582665, 0), App.Rotation(V(0, 0, 1), V(0, 0, 1)))
polarpattern2 = doc.addObject("PartDesign::PolarPattern", "PolarPattern001")
body.addObject(polarpattern2)
polarpattern2.Originals = [pocket3]
polarpattern2.Axis = (datumline2, [""])
polarpattern2.Angle = 360
polarpattern2.Occurrences = 4
body.Tip = polarpattern2

# Sketch on XY plane
sketch6 = doc.addObject("Sketcher::SketchObject", "Sketch005")
body.addObject(sketch6)
sketch6.AttachmentSupport = (doc.XY_Plane, [""])
sketch6.MapMode = "FlatFace"
sketch6.AttachmentOffset = App.Placement(V(0, 0, 2), App.Rotation())
sketch6.addGeometry(Part.Circle(V(0.2, -76.1, 0), V(0, 0, 1), 1.6), False)
sketch6.addGeometry(Part.Circle(V(0.2, -61.1, 0), V(0, 0, 1), 1.6), False)
sketch6.addGeometry(Part.Circle(V(18.7, -52.3, 0), V(0, 0, 1), 1.6), False)
sketch6.addGeometry(Part.Circle(V(63.7, -52.3, 0), V(0, 0, 1), 1.6), False)
sketch6.addGeometry(Part.Circle(V(63.7, -84.8, 0), V(0, 0, 1), 1.6), False)
sketch6.addGeometry(Part.Circle(V(18.7, -84.8, 0), V(0, 0, 1), 1.6), False)
sketch6.addConstraint(Sketcher.Constraint("Equal", 1, 2))
sketch6.addConstraint(Sketcher.Constraint("Equal", 2, 3))
sketch6.addConstraint(Sketcher.Constraint("Equal", 3, 4))
sketch6.addConstraint(Sketcher.Constraint("Equal", 4, 5))
sketch6.addConstraint(Sketcher.Constraint("Horizontal", 2, 3, 3, 3))
sketch6.addConstraint(Sketcher.Constraint("Horizontal", 4, 3, 5, 3))
sketch6.addConstraint(Sketcher.Constraint("Vertical", 0, 3, 1, 3))
sketch6.addConstraint(Sketcher.Constraint("Vertical", 3, 3, 4, 3))
sketch6.addConstraint(Sketcher.Constraint("Vertical", 2, 3, 5, 3))
sketch6.addConstraint(Sketcher.Constraint("Diameter", 1, 3.2))
sketch6.addConstraint(Sketcher.Constraint("DistanceY", 0, 3, 1, 3, 15.0))
sketch6.addConstraint(Sketcher.Constraint("DistanceX", 2, 3, 3, 3, 45.0))
sketch6.addConstraint(Sketcher.Constraint("DistanceX", 1, 3, 2, 3, 18.5))
sketch6.addConstraint(Sketcher.Constraint("DistanceY", 4, 3, 3, 3, 32.5))
sketch6.addConstraint(Sketcher.Constraint("Diameter", 0, 3.16036))
sketch6.addConstraint(Sketcher.Constraint("DistanceY", 0, 3, -1, 1, 76.092029))
sketch6.addConstraint(Sketcher.Constraint("DistanceX", -1, 1, 0, 3, 0.228994))
sketch6.addConstraint(Sketcher.Constraint("DistanceY", 2, 3, -1, 1, 52.332665))
pocket4 = doc.addObject("PartDesign::Pocket", "Pocket003")
body.addObject(pocket4)
pocket4.Profile = sketch6
pocket4.Length = 2
doc.recompute()

datumline3 = doc.addObject("PartDesign::Line", "DatumLine002")
body.addObject(datumline3)
datumline3.Placement = App.Placement(V(-80.500357, -68.582665, 0), App.Rotation(V(0, 0, 1), V(0, 0, 1)))
polarpattern3 = doc.addObject("PartDesign::PolarPattern", "PolarPattern002")
body.addObject(polarpattern3)
polarpattern3.Originals = [pocket4]
polarpattern3.Axis = (datumline3, [""])
polarpattern3.Angle = 360
polarpattern3.Occurrences = 4
body.Tip = polarpattern3

doc.recompute()
